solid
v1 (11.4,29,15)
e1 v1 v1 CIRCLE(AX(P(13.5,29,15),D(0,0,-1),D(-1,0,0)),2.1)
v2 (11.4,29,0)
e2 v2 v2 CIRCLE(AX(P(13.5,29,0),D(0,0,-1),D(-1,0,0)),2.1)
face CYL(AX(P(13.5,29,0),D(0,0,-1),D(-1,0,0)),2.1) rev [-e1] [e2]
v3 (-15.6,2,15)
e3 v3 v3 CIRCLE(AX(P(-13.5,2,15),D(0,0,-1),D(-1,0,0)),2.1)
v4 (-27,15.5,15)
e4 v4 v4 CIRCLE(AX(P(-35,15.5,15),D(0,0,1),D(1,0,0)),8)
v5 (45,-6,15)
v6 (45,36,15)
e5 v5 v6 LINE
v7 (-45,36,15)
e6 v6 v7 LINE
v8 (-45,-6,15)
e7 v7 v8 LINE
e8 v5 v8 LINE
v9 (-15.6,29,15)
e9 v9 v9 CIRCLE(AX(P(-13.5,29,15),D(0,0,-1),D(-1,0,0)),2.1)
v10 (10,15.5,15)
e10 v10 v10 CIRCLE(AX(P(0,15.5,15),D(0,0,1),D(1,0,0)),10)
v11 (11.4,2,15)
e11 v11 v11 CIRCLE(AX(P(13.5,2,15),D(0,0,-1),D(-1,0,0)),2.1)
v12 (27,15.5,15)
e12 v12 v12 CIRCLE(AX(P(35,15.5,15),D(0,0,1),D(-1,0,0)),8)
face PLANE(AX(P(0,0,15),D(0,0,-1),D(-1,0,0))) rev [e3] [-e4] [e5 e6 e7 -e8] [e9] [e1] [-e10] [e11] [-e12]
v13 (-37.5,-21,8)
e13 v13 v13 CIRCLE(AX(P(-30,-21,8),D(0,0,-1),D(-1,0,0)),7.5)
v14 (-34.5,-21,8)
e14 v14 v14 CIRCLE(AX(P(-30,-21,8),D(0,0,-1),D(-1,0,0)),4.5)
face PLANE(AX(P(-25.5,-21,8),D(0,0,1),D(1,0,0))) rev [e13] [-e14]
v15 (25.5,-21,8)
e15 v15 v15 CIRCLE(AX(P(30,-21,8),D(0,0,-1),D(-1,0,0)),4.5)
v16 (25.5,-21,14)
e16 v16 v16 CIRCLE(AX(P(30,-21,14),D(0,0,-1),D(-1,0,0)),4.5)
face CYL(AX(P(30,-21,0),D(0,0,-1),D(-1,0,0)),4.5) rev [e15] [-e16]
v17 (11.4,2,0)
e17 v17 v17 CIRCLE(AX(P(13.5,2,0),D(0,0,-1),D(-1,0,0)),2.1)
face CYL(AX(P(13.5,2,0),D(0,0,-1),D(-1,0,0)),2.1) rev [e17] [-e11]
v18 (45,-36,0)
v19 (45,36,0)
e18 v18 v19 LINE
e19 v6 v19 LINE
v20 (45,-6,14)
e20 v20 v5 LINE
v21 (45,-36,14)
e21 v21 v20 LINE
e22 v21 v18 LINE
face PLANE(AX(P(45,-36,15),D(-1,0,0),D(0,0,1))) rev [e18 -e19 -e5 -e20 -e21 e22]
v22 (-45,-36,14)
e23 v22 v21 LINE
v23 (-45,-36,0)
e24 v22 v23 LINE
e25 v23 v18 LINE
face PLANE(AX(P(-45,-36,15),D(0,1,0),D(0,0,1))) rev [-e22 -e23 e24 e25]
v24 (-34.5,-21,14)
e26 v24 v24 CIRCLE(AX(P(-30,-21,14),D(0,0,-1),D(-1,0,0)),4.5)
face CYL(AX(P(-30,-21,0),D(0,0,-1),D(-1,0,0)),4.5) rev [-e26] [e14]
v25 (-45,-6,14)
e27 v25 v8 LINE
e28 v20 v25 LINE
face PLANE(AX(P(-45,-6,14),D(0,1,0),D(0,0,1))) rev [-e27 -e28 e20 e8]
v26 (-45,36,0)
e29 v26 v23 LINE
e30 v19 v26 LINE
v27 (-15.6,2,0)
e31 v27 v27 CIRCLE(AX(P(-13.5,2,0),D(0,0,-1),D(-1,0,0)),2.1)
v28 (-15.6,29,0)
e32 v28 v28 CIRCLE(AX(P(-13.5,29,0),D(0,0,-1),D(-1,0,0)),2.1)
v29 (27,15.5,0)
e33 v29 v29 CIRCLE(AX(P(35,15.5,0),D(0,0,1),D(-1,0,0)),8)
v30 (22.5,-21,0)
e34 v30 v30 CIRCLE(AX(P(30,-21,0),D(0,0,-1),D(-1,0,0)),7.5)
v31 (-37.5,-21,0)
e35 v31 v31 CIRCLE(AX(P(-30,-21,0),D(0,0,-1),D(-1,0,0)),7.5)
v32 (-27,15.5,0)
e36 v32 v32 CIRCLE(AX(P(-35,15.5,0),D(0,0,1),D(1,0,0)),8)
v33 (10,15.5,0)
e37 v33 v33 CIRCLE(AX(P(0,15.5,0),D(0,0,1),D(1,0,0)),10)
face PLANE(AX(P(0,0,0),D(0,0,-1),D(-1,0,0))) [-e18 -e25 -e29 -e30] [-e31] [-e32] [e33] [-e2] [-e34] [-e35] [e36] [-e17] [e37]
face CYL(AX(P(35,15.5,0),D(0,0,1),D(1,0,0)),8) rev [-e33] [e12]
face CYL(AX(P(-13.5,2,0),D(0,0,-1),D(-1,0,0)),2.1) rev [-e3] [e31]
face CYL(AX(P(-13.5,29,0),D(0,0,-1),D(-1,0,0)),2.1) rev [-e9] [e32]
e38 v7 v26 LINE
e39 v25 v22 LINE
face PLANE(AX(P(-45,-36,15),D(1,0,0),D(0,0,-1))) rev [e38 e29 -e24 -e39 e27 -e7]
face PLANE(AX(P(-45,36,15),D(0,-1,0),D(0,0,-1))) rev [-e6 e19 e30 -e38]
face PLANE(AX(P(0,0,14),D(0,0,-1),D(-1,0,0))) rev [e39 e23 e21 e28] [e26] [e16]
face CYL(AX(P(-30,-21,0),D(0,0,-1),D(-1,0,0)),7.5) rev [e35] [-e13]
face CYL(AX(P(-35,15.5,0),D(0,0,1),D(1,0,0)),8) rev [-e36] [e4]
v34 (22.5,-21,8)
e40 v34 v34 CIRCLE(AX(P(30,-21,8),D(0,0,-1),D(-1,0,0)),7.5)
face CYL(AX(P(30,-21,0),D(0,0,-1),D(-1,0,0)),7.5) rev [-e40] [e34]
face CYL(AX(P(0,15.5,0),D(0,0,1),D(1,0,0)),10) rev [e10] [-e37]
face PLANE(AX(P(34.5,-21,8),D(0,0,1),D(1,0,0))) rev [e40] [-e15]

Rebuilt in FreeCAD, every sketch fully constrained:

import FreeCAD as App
import Part
import Sketcher
from FreeCAD import Vector
Q = App.Units.Quantity

doc = App.newDocument("Part")
body = doc.addObject("PartDesign::Body", "Body")

sketch1 = body.newObject("Sketcher::SketchObject", "Sketch")
sketch1.AttachmentSupport = (doc.getObject("XY_Plane"), [""])
sketch1.MapMode = "FlatFace"
sketch1.addGeometry(Part.LineSegment(Vector(-45, 36, 0), Vector(-45, -36, 0)), False)
sketch1.addGeometry(Part.LineSegment(Vector(-45, -36, 0), Vector(45, -36, 0)), False)
sketch1.addGeometry(Part.LineSegment(Vector(45, -36, 0), Vector(45, 36, 0)), False)
sketch1.addGeometry(Part.LineSegment(Vector(45, 36, 0), Vector(-45, 36, 0)), False)
sketch1.addConstraint(Sketcher.Constraint("Coincident", 0, 2, 1, 1))
sketch1.addConstraint(Sketcher.Constraint("Coincident", 1, 2, 2, 1))
sketch1.addConstraint(Sketcher.Constraint("Coincident", 2, 2, 3, 1))
sketch1.addConstraint(Sketcher.Constraint("Coincident", 3, 2, 0, 1))
sketch1.addConstraint(Sketcher.Constraint("Vertical", 0))
sketch1.addConstraint(Sketcher.Constraint("Horizontal", 1))
sketch1.addConstraint(Sketcher.Constraint("Vertical", 2))
sketch1.addConstraint(Sketcher.Constraint("Horizontal", 3))
sketch1.addConstraint(Sketcher.Constraint("Symmetric", 0, 2, 2, 2, -1, 1))
sketch1.addConstraint(Sketcher.Constraint("DistanceX", 1, 1, 1, 2, Q("90 mm")))
sketch1.addConstraint(Sketcher.Constraint("DistanceY", 0, 2, 0, 1, Q("72 mm")))
pad1 = body.newObject("PartDesign::Pad", "Pad")
pad1.Profile = sketch1
pad1.Length = 15

sketch2 = body.newObject("Sketcher::SketchObject", "Sketch001")
sketch2.AttachmentSupport = (doc.getObject("XY_Plane"), [""])
sketch2.MapMode = "FlatFace"
sketch2.AttachmentOffset = App.Placement(Vector(0, 0, 15), App.Rotation())
sketch2.addGeometry(Part.LineSegment(Vector(-45, -6, 0), Vector(-45, -36, 0)), False)
sketch2.addGeometry(Part.LineSegment(Vector(-45, -36, 0), Vector(45, -36, 0)), False)
sketch2.addGeometry(Part.LineSegment(Vector(45, -36, 0), Vector(45, -6, 0)), False)
sketch2.addGeometry(Part.LineSegment(Vector(45, -6, 0), Vector(-45, -6, 0)), False)
sketch2.addConstraint(Sketcher.Constraint("Coincident", 0, 2, 1, 1))
sketch2.addConstraint(Sketcher.Constraint("Coincident", 1, 2, 2, 1))
sketch2.addConstraint(Sketcher.Constraint("Coincident", 2, 2, 3, 1))
sketch2.addConstraint(Sketcher.Constraint("Coincident", 3, 2, 0, 1))
sketch2.addConstraint(Sketcher.Constraint("Vertical", 0))
sketch2.addConstraint(Sketcher.Constraint("Horizontal", 1))
sketch2.addConstraint(Sketcher.Constraint("Vertical", 2))
sketch2.addConstraint(Sketcher.Constraint("Horizontal", 3))
sketch2.addConstraint(Sketcher.Constraint("DistanceX", 1, 1, 1, 2, Q("90 mm")))
sketch2.addConstraint(Sketcher.Constraint("DistanceY", 0, 2, 0, 1, Q("30 mm")))
sketch2.addConstraint(Sketcher.Constraint("DistanceX", 0, 2, -1, 1, Q("45 mm")))
sketch2.addConstraint(Sketcher.Constraint("DistanceY", 0, 2, -1, 1, Q("36 mm")))
pocket1 = body.newObject("PartDesign::Pocket", "Pocket")
pocket1.Profile = sketch2
pocket1.Length = 1

sketch3 = body.newObject("Sketcher::SketchObject", "Sketch002")
sketch3.AttachmentSupport = (doc.getObject("XY_Plane"), [""])
sketch3.MapMode = "FlatFace"
sketch3.AttachmentOffset = App.Placement(Vector(0, 0, 15), App.Rotation())
sketch3.addGeometry(Part.Circle(Vector(0, 16, 0), Vector(0, 0, 1), 10), False)
sketch3.addGeometry(Part.Circle(Vector(-35, 16, 0), Vector(0, 0, 1), 8), False)
sketch3.addGeometry(Part.Circle(Vector(35, 16, 0), Vector(0, 0, 1), 8), False)
sketch3.addConstraint(Sketcher.Constraint("Equal", 1, 2))
sketch3.addConstraint(Sketcher.Constraint("Symmetric", 1, 3, 2, 3, -2))
sketch3.addConstraint(Sketcher.Constraint("PointOnObject", 0, 3, -2))
sketch3.addConstraint(Sketcher.Constraint("Horizontal", 0, 3, 1, 3))
sketch3.addConstraint(Sketcher.Constraint("Diameter", 0, Q("20 mm")))
sketch3.addConstraint(Sketcher.Constraint("Diameter", 1, Q("16 mm")))
sketch3.addConstraint(Sketcher.Constraint("DistanceX", 1, 3, -1, 1, Q("35 mm")))
sketch3.addConstraint(Sketcher.Constraint("DistanceY", -1, 1, 0, 3, Q("15.5 mm")))
pocket2 = body.newObject("PartDesign::Pocket", "Pocket001")
pocket2.Profile = sketch3
pocket2.Type = "ThroughAll"

sketch4 = body.newObject("Sketcher::SketchObject", "Sketch003")
sketch4.AttachmentSupport = (doc.getObject("XY_Plane"), [""])
sketch4.MapMode = "FlatFace"
sketch4.addGeometry(Part.Circle(Vector(-30, -21, 0), Vector(0, 0, 1), 4.5), False)
sketch4.addGeometry(Part.Circle(Vector(30, -21, 0), Vector(0, 0, 1), 4.5), False)
sketch4.addConstraint(Sketcher.Constraint("Equal", 0, 1))
sketch4.addConstraint(Sketcher.Constraint("Symmetric", 0, 3, 1, 3, -2))
sketch4.addConstraint(Sketcher.Constraint("Diameter", 0, Q("9 mm")))
sketch4.addConstraint(Sketcher.Constraint("DistanceX", 0, 3, -1, 1, Q("30 mm")))
sketch4.addConstraint(Sketcher.Constraint("DistanceY", 0, 3, -1, 1, Q("21 mm")))
doc.recompute()
hole = body.newObject("PartDesign::Hole", "Hole")
hole.Profile = sketch4
hole.ThreadType = "None"
hole.Diameter = 9
hole.DepthType = "Dimension"
hole.Depth = 15
hole.DrillPoint = "Angled"
hole.DrillPointAngle = 118
hole.HoleCutType = "Counterbore"
hole.HoleCutDiameter = 15
hole.HoleCutDepth = 8
hole.Reversed = True

sketch5 = body.newObject("Sketcher::SketchObject", "Sketch004")
sketch5.AttachmentSupport = (doc.getObject("XY_Plane"), [""])
sketch5.MapMode = "FlatFace"
sketch5.addGeometry(Part.Circle(Vector(-13.5, 2, 0), Vector(0, 0, 1), 2.1), False)
sketch5.addGeometry(Part.Circle(Vector(-13.5, 29, 0), Vector(0, 0, 1), 2.1), False)
sketch5.addGeometry(Part.Circle(Vector(13.5, 29, 0), Vector(0, 0, 1), 2.1), False)
sketch5.addGeometry(Part.Circle(Vector(13.5, 2, 0), Vector(0, 0, 1), 2.1), False)
sketch5.addConstraint(Sketcher.Constraint("Equal", 0, 1))
sketch5.addConstraint(Sketcher.Constraint("Equal", 1, 2))
sketch5.addConstraint(Sketcher.Constraint("Equal", 2, 3))
sketch5.addConstraint(Sketcher.Constraint("Symmetric", 1, 3, 2, 3, -2))
sketch5.addConstraint(Sketcher.Constraint("Symmetric", 0, 3, 3, 3, -2))
sketch5.addConstraint(Sketcher.Constraint("Vertical", 0, 3, 1, 3))
sketch5.addConstraint(Sketcher.Constraint("Diameter", 0, Q("4.2 mm")))
sketch5.addConstraint(Sketcher.Constraint("DistanceY", -1, 1, 0, 3, Q("2 mm")))
sketch5.addConstraint(Sketcher.Constraint("DistanceY", -1, 1, 1, 3, Q("29 mm")))
sketch5.addConstraint(Sketcher.Constraint("DistanceX", 1, 3, 2, 3, Q("27 mm")))
doc.recompute()
hole2 = body.newObject("PartDesign::Hole", "Hole001")
hole2.Profile = sketch5
hole2.ThreadType = "None"
hole2.Diameter = 4.2
hole2.DepthType = "ThroughAll"
hole2.Reversed = True

doc.recompute()
